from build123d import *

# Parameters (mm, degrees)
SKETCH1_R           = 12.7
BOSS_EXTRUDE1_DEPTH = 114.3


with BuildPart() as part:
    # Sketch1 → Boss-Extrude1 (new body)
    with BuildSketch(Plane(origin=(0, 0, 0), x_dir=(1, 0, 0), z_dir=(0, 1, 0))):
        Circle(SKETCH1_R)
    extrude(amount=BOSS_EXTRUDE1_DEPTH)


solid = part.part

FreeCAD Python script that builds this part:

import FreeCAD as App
import Part
import Sketcher

V = App.Vector
Q = App.Units.Quantity

doc = App.newDocument("Part")
params = doc.addObject("Spreadsheet::Sheet", "Params")
for row, (alias, value) in enumerate([
    ("sketch1_diameter", "1 in"),
    ("pad1_length", "4.5 in"),
], start=1):
    params.set(f"A{row}", alias)
    params.set(f"B{row}", "=" + value)
    params.setAlias(f"B{row}", alias)

body = doc.addObject("PartDesign::Body", "Body")

sketch1 = body.newObject("Sketcher::SketchObject", "Sketch")
sketch1.AttachmentSupport = (doc.getObject("XZ_Plane"), [""])
sketch1.MapMode = "FlatFace"
sketch1.addGeometry(Part.Circle(V(0, 0, 0), V(0, 0, 1), 13), False)
sketch1.addConstraint([
    Sketcher.Constraint("Coincident", 0, 3, -1, 1),
    Sketcher.Constraint("Diameter", 0, Q("1 in")),
])
sketch1.setExpression("Constraints[1]", "Params.sketch1_diameter")
pad1 = body.newObject("PartDesign::Pad", "Pad")
pad1.Profile = sketch1
pad1.setExpression("Length", "Params.pad1_length")
pad1.Reversed = True

doc.recompute()
